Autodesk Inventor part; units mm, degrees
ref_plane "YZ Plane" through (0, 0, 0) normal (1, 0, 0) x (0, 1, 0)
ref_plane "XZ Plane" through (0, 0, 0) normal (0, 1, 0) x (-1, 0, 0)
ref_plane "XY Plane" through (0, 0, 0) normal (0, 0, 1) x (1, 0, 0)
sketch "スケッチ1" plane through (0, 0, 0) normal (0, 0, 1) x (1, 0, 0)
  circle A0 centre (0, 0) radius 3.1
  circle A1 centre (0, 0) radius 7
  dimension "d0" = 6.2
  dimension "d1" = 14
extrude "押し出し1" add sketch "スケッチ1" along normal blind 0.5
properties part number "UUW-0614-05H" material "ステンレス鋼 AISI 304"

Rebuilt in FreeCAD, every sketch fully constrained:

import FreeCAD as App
import Part
import Sketcher

V = App.Vector

doc = App.newDocument("Part")
body = doc.addObject("PartDesign::Body", "Body")

sketch1 = body.newObject("Sketcher::SketchObject", "Sketch")
sketch1.AttachmentSupport = (doc.getObject("XY_Plane"), [""])
sketch1.MapMode = "FlatFace"
sketch1.addGeometry([
    Part.Circle(V(0, 0, 0), V(0, 0, 1), 7),
    Part.Circle(V(0, 0, 0), V(0, 0, 1), 3.1),
], False)
sketch1.addConstraint([
    Sketcher.Constraint("Coincident", 0, 3, -1, 1),
    Sketcher.Constraint("Coincident", 1, 3, -1, 1),
    Sketcher.Constraint("Diameter", 0, 14.0),
    Sketcher.Constraint("Diameter", 1, 6.2),
])
pad1 = body.newObject("PartDesign::Pad", "Pad")
pad1.Profile = sketch1
pad1.Length = 0.5

doc.recompute()
